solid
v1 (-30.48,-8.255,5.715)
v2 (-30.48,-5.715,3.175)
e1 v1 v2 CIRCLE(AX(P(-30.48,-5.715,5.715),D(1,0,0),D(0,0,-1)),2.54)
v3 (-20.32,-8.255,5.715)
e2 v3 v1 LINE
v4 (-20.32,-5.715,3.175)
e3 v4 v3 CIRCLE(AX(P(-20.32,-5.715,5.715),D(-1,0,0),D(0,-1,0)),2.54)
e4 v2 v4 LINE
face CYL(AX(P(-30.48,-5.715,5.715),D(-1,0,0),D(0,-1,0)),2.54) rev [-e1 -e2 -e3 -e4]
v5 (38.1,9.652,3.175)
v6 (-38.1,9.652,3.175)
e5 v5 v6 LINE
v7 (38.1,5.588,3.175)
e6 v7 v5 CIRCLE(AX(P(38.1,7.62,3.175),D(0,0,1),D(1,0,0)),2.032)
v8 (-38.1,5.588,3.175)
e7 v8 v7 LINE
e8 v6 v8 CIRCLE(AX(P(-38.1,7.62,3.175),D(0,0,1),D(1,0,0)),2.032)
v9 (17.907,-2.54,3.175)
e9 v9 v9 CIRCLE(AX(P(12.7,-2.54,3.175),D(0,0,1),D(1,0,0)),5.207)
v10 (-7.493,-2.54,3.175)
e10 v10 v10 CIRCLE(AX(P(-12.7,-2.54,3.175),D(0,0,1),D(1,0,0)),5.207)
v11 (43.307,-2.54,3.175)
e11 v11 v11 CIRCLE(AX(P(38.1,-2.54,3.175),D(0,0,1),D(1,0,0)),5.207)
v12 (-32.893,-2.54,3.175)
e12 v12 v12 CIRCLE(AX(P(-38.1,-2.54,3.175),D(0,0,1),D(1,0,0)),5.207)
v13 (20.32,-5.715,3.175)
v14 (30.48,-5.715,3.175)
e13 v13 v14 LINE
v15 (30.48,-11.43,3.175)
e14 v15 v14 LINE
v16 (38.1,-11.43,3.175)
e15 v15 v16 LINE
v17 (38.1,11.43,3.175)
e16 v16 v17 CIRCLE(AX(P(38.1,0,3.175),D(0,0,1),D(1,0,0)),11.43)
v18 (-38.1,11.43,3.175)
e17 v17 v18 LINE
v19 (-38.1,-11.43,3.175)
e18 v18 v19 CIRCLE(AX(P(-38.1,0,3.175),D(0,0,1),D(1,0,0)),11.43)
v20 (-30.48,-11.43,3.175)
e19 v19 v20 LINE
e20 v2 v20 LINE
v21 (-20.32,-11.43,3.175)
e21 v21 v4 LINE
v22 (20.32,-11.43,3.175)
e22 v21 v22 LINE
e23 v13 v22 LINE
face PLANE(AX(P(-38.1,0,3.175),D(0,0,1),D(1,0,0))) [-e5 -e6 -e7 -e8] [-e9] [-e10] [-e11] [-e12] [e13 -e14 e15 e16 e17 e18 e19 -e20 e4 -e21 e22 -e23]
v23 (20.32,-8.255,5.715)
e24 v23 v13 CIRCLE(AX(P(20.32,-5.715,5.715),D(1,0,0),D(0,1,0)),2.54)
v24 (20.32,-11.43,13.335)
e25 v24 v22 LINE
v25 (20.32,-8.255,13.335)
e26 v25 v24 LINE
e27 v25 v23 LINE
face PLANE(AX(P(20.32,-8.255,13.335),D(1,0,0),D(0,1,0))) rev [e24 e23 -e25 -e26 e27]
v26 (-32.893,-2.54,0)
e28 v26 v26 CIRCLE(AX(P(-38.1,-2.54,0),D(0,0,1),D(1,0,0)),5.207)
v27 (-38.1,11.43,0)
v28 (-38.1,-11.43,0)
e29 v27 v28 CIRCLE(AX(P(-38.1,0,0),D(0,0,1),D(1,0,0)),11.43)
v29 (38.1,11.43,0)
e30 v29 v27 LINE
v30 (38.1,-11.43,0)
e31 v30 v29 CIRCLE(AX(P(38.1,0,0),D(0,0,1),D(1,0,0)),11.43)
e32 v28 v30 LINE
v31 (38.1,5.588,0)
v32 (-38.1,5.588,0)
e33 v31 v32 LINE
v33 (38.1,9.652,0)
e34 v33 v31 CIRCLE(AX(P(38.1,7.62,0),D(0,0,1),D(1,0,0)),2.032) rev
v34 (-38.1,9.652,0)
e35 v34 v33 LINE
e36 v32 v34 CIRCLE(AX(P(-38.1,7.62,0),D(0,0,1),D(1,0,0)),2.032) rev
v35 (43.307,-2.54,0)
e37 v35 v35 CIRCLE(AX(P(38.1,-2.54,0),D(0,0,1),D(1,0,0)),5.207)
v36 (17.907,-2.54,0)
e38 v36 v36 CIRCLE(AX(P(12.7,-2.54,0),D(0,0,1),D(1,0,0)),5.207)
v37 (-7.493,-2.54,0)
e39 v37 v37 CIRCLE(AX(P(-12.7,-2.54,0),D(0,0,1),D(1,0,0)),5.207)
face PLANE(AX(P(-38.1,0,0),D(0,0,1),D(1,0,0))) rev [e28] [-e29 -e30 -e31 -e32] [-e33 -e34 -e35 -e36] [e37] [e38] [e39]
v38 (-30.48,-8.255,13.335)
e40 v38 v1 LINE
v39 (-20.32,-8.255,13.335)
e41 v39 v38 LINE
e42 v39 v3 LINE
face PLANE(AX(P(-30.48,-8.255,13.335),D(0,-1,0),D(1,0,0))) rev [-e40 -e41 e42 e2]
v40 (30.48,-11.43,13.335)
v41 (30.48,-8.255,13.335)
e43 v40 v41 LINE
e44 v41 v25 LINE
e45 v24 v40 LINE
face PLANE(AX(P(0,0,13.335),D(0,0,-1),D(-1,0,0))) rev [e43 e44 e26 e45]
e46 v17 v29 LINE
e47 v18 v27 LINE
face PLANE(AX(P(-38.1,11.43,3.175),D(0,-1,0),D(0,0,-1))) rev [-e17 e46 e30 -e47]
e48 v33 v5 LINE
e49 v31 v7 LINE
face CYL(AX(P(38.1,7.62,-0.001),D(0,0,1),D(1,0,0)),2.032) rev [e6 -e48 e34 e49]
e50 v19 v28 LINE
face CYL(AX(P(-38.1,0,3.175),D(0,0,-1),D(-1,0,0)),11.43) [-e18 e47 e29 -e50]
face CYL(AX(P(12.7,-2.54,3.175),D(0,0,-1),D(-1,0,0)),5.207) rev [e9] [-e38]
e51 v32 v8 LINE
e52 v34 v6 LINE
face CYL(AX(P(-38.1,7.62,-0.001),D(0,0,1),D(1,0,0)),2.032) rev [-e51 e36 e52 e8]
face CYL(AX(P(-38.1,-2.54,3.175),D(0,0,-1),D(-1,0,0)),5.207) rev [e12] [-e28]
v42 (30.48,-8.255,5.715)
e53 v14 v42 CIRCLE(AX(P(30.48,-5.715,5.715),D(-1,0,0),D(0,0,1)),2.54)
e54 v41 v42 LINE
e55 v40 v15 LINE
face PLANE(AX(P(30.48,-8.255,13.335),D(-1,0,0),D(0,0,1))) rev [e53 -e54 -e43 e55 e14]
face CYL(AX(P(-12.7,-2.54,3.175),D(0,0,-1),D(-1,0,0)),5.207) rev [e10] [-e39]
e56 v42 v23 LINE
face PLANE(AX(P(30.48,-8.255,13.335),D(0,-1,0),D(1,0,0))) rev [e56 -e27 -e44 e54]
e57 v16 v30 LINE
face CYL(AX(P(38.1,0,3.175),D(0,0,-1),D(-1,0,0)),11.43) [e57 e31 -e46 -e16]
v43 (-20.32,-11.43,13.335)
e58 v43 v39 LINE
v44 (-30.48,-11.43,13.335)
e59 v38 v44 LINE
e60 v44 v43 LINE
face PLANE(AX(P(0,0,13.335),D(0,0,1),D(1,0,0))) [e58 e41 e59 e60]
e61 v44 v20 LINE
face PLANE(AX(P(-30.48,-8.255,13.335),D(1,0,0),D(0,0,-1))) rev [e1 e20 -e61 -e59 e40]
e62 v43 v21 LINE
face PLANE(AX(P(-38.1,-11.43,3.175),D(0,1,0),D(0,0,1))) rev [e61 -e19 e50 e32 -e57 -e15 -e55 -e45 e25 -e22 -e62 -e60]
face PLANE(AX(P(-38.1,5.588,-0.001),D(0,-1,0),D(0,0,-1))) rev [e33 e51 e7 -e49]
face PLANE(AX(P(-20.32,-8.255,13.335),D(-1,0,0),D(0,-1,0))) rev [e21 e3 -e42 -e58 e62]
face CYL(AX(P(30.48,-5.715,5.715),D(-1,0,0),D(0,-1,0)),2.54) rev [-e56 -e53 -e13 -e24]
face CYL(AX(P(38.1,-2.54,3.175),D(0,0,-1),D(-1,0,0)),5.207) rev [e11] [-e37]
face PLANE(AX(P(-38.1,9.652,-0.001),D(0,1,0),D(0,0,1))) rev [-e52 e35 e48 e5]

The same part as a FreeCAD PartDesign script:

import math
import FreeCAD as App
import Part
import Sketcher

V = App.Vector
Q = App.Units.Quantity


def edges_at(feature, points):
    """Names of the edges that pass closest to the given points."""
    edges = feature.Shape.Edges
    near = lambda p: min(range(len(edges)), key=lambda i: edges[i].distToShape(Part.Vertex(*p))[0])
    return sorted({f"Edge{near(p) + 1}" for p in points})

doc = App.newDocument("Part")
body = doc.addObject("PartDesign::Body", "Body")

sketch1 = doc.addObject("Sketcher::SketchObject", "Sketch")
body.addObject(sketch1)
sketch1.AttachmentSupport = (doc.XY_Plane, [""])
sketch1.MapMode = "FlatFace"
sketch1.addGeometry(Part.LineSegment(V(38, 11, 0), V(-38, 11, 0)), False)
sketch1.addGeometry(Part.ArcOfCircle(Part.Circle(V(-38, 0, 0), V(0, 0, 1), 11), math.radians(90), math.radians(270)), False)
sketch1.addGeometry(Part.LineSegment(V(-38, -11, 0), V(38, -11, 0)), False)
sketch1.addGeometry(Part.ArcOfCircle(Part.Circle(V(38, 0, 0), V(0, 0, 1), 11), math.radians(-90), math.radians(90)), False)
sketch1.addGeometry(Part.Circle(V(38, -3, 0), V(0, 0, 1), 5), False)
sketch1.addGeometry(Part.Circle(V(13, -3, 0), V(0, 0, 1), 5), False)
sketch1.addGeometry(Part.Circle(V(-13, -3, 0), V(0, 0, 1), 5), False)
sketch1.addGeometry(Part.Circle(V(-38, -3, 0), V(0, 0, 1), 5), False)
sketch1.addConstraint(Sketcher.Constraint("Tangent", 0, 2, 1, 1))
sketch1.addConstraint(Sketcher.Constraint("Tangent", 1, 2, 2, 1))
sketch1.addConstraint(Sketcher.Constraint("Tangent", 2, 2, 3, 1))
sketch1.addConstraint(Sketcher.Constraint("Tangent", 3, 2, 0, 1))
sketch1.addConstraint(Sketcher.Constraint("Horizontal", 0))
sketch1.addConstraint(Sketcher.Constraint("Horizontal", 2))
sketch1.addConstraint(Sketcher.Constraint("Equal", 4, 5))
sketch1.addConstraint(Sketcher.Constraint("Equal", 5, 6))
sketch1.addConstraint(Sketcher.Constraint("Equal", 6, 7))
sketch1.addConstraint(Sketcher.Constraint("Symmetric", 1, 3, 3, 3, -1, 1))
sketch1.addConstraint(Sketcher.Constraint("Symmetric", 5, 3, 6, 3, -2))
sketch1.addConstraint(Sketcher.Constraint("Symmetric", 4, 3, 7, 3, -2))
sketch1.addConstraint(Sketcher.Constraint("Horizontal", 4, 3, 5, 3))
sketch1.addConstraint(Sketcher.Constraint("Vertical", 3, 3, 4, 3))
sketch1.addConstraint(Sketcher.Constraint("Diameter", 4, Q("0.41 in")))
sketch1.addConstraint(Sketcher.Constraint("DistanceX", 0, 2, 0, 1, Q("3 in")))
sketch1.addConstraint(Sketcher.Constraint("Radius", 1, Q("0.45 in")))
sketch1.addConstraint(Sketcher.Constraint("DistanceX", 5, 3, 4, 3, Q("1 in")))
sketch1.addConstraint(Sketcher.Constraint("DistanceY", 4, 3, -1, 1, Q("0.1 in")))
pad1 = doc.addObject("PartDesign::Pad", "Pad")
body.addObject(pad1)
pad1.Profile = sketch1
pad1.Length = Q("0.125 in")

sketch2 = doc.addObject("Sketcher::SketchObject", "Sketch001")
body.addObject(sketch2)
sketch2.AttachmentSupport = (doc.XY_Plane, [""])
sketch2.MapMode = "FlatFace"
sketch2.AttachmentOffset = App.Placement(V(0, 0, 0.125 * 25.4), App.Rotation())
sketch2.addGeometry(Part.LineSegment(V(-30.5, -8.3, 0), V(-30.5, -11.4, 0)), False)
sketch2.addGeometry(Part.LineSegment(V(-30.5, -11.4, 0), V(-20.3, -11.4, 0)), False)
sketch2.addGeometry(Part.LineSegment(V(-20.3, -11.4, 0), V(-20.3, -8.3, 0)), False)
sketch2.addGeometry(Part.LineSegment(V(-20.3, -8.3, 0), V(-30.5, -8.3, 0)), False)
sketch2.addGeometry(Part.LineSegment(V(20.3, -8.3, 0), V(20.3, -11.4, 0)), False)
sketch2.addGeometry(Part.LineSegment(V(20.3, -11.4, 0), V(30.5, -11.4, 0)), False)
sketch2.addGeometry(Part.LineSegment(V(30.5, -11.4, 0), V(30.5, -8.3, 0)), False)
sketch2.addGeometry(Part.LineSegment(V(30.5, -8.3, 0), V(20.3, -8.3, 0)), False)
sketch2.addConstraint(Sketcher.Constraint("Coincident", 0, 2, 1, 1))
sketch2.addConstraint(Sketcher.Constraint("Coincident", 1, 2, 2, 1))
sketch2.addConstraint(Sketcher.Constraint("Coincident", 2, 2, 3, 1))
sketch2.addConstraint(Sketcher.Constraint("Coincident", 3, 2, 0, 1))
sketch2.addConstraint(Sketcher.Constraint("Coincident", 4, 2, 5, 1))
sketch2.addConstraint(Sketcher.Constraint("Coincident", 5, 2, 6, 1))
sketch2.addConstraint(Sketcher.Constraint("Coincident", 6, 2, 7, 1))
sketch2.addConstraint(Sketcher.Constraint("Coincident", 7, 2, 4, 1))
sketch2.addConstraint(Sketcher.Constraint("Vertical", 0))
sketch2.addConstraint(Sketcher.Constraint("Horizontal", 1))
sketch2.addConstraint(Sketcher.Constraint("Vertical", 2))
sketch2.addConstraint(Sketcher.Constraint("Horizontal", 3))
sketch2.addConstraint(Sketcher.Constraint("Vertical", 4))
sketch2.addConstraint(Sketcher.Constraint("Horizontal", 5))
sketch2.addConstraint(Sketcher.Constraint("Vertical", 6))
sketch2.addConstraint(Sketcher.Constraint("Horizontal", 7))
sketch2.addConstraint(Sketcher.Constraint("Symmetric", 1, 2, 4, 2, -2))
sketch2.addConstraint(Sketcher.Constraint("Symmetric", 3, 2, 6, 2, -2))
sketch2.addConstraint(Sketcher.Constraint("DistanceX", 1, 1, 1, 2, Q("0.4 in")))
sketch2.addConstraint(Sketcher.Constraint("DistanceX", 0, 2, 4, 2, Q("2 in")))
sketch2.addConstraint(Sketcher.Constraint("DistanceY", 0, 2, 0, 1, Q("0.125 in")))
sketch2.addConstraint(Sketcher.Constraint("DistanceY", 0, 2, -1, 1, Q("0.45 in")))
pad2 = doc.addObject("PartDesign::Pad", "Pad001")
body.addObject(pad2)
pad2.Profile = sketch2
pad2.Length = Q("0.4 in")
doc.recompute()

fillet = doc.addObject("PartDesign::Fillet", "Fillet")
body.addObject(fillet)
fillet.Base = (pad2, edges_at(pad2, [(25.4, -8.255, 3.175), (-25.4, -8.255, 3.175)]))
fillet.Radius = Q("0.1 in")

sketch3 = doc.addObject("Sketcher::SketchObject", "Sketch002")
body.addObject(sketch3)
sketch3.AttachmentSupport = (doc.XY_Plane, [""])
sketch3.MapMode = "FlatFace"
sketch3.AttachmentOffset = App.Placement(V(0, 0, 0.125 * 25.4), App.Rotation())
sketch3.addGeometry(Part.LineSegment(V(38.1, 9.7, 0), V(-38.1, 9.7, 0)), False)
sketch3.addGeometry(Part.ArcOfCircle(Part.Circle(V(-38.1, 7.6, 0), V(0, 0, 1), 2), math.radians(90), math.radians(270)), False)
sketch3.addGeometry(Part.LineSegment(V(-38.1, 5.6, 0), V(38.1, 5.6, 0)), False)
sketch3.addGeometry(Part.ArcOfCircle(Part.Circle(V(38.1, 7.6, 0), V(0, 0, 1), 2), math.radians(-90), math.radians(90)), False)
sketch3.addConstraint(Sketcher.Constraint("Tangent", 0, 2, 1, 1))
sketch3.addConstraint(Sketcher.Constraint("Tangent", 1, 2, 2, 1))
sketch3.addConstraint(Sketcher.Constraint("Tangent", 2, 2, 3, 1))
sketch3.addConstraint(Sketcher.Constraint("Tangent", 3, 2, 0, 1))
sketch3.addConstraint(Sketcher.Constraint("Horizontal", 0))
sketch3.addConstraint(Sketcher.Constraint("Horizontal", 2))
sketch3.addConstraint(Sketcher.Constraint("DistanceX", 0, 2, 0, 1, Q("3 in")))
sketch3.addConstraint(Sketcher.Constraint("Radius", 1, Q("0.08 in")))
sketch3.addConstraint(Sketcher.Constraint("DistanceX", 1, 3, -1, 1, Q("1.5 in")))
sketch3.addConstraint(Sketcher.Constraint("DistanceY", -1, 1, 1, 3, Q("0.3 in")))
pocket1 = doc.addObject("PartDesign::Pocket", "Pocket")
body.addObject(pocket1)
pocket1.Profile = sketch3
pocket1.Type = "UpToFirst"

doc.recompute()
